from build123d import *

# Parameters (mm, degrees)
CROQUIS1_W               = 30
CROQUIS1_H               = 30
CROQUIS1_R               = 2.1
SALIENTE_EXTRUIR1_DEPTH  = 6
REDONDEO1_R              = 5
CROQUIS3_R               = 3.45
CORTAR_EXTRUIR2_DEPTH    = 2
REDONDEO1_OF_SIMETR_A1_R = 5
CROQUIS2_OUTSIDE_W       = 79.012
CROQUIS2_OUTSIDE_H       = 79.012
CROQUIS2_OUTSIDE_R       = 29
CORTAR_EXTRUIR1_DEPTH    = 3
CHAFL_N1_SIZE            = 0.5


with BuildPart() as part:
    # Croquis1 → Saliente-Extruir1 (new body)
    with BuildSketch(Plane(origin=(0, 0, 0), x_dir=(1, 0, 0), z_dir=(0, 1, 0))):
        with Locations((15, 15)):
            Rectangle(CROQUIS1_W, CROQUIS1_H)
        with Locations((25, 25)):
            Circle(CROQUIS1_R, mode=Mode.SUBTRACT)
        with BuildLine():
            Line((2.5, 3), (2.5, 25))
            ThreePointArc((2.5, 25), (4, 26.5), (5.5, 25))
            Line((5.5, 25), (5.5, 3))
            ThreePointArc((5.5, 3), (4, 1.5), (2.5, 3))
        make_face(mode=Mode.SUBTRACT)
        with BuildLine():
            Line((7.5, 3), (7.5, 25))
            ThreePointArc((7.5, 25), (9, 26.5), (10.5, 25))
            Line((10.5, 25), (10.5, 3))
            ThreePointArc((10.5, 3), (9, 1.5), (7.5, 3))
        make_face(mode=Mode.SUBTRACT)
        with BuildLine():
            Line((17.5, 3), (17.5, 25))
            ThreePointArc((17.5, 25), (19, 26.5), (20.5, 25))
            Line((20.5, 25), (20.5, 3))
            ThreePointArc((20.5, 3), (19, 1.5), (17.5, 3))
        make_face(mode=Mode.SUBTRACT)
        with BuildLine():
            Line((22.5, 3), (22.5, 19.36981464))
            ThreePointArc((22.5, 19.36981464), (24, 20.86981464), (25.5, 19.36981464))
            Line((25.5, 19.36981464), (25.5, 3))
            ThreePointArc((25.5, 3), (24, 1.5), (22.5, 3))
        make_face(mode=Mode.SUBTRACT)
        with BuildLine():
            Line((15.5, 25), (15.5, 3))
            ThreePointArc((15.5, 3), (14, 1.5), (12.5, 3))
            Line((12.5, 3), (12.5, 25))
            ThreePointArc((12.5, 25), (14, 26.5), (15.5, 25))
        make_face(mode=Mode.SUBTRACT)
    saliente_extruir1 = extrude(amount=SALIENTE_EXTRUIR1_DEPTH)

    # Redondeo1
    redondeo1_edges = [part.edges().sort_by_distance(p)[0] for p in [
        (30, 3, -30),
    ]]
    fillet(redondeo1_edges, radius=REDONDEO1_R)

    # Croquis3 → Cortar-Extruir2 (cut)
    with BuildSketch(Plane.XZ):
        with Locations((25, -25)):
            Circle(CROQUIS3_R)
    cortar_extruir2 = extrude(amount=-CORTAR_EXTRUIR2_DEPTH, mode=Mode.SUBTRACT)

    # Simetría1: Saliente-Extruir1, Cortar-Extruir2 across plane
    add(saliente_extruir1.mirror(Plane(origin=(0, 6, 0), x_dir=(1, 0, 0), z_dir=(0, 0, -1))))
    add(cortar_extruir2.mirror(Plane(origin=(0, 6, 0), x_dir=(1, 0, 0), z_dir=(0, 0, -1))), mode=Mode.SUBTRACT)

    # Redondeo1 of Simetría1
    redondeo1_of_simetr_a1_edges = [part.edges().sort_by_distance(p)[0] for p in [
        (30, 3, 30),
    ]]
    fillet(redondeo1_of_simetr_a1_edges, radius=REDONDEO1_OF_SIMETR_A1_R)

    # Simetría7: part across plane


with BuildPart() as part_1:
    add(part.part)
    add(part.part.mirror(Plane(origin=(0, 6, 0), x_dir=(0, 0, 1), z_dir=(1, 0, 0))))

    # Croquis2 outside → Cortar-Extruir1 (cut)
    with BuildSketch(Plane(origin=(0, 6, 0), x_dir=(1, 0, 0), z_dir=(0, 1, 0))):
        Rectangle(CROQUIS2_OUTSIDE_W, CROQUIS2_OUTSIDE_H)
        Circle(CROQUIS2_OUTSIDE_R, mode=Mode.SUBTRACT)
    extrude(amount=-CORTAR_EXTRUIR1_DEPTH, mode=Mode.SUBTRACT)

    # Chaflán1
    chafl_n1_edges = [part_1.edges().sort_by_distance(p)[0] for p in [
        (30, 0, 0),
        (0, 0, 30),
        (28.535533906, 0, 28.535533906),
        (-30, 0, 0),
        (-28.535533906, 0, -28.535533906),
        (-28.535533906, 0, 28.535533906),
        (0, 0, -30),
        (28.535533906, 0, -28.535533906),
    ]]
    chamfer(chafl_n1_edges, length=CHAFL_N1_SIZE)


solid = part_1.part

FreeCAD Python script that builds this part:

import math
import FreeCAD as App
import Part
import Sketcher
from FreeCAD import Vector


def edges_at(feature, points):
    """Names of the edges that pass closest to the given points."""
    edges = feature.Shape.Edges
    near = lambda p: min(range(len(edges)), key=lambda i: edges[i].distToShape(Part.Vertex(*p))[0])
    return sorted({f"Edge{near(p) + 1}" for p in points})


def add_polygon(sketch, points):
    """Adds a closed chain of lines whose ends are joined by coincident constraints."""
    first, n = sketch.GeometryCount, len(points)
    for a, b in zip(points, points[1:] + points[:1]):
        sketch.addGeometry(Part.LineSegment(App.Vector(*a, 0), App.Vector(*b, 0)), False)
    for i in range(n):
        sketch.addConstraint(Sketcher.Constraint("Coincident", first + i, 2, first + (i + 1) % n, 1))

doc = App.newDocument("Part")
params = doc.addObject("Spreadsheet::Sheet", "Params")
for row, (alias, value) in enumerate([
    ("sketch1_diameter", "4.2 mm"),
    ("sketch1_radius", "1.5 mm"),
    ("sketch1_width", "30 mm"),
    ("sketch1_height", "22 mm"),
    ("pad1_length", "6 mm"),
    ("fillet_radius", "5 mm"),
    ("sketch2_diameter", "6.9 mm"),
    ("pocket1_length", "2 mm"),
    ("fillet2_radius", "5 mm"),
    ("sketch3_diameter", "58 mm"),
    ("pocket2_length", "3 mm"),
    ("chamfer_size", "0.5 mm"),
], start=1):
    params.set(f"A{row}", alias)
    params.set(f"B{row}", "=" + value)
    params.setAlias(f"B{row}", alias)

body = doc.addObject("PartDesign::Body", "Body")

# Sketch on XZ plane
sketch1 = body.newObject("Sketcher::SketchObject", "Sketch")
sketch1.AttachmentSupport = (doc.getObject("XZ_Plane"), [""])
sketch1.MapMode = "FlatFace"
add_polygon(sketch1, [(0, -30), (0, 0), (30, 0), (30, -30)])  # lines 0-3
sketch1.addGeometry(Part.ArcOfCircle(Part.Circle(Vector(4, -3, 0), Vector(0, 0, 1), 1.5), math.radians(0), math.radians(180)), False)  # 4
sketch1.addGeometry(Part.LineSegment(Vector(2.5, -3, 0), Vector(2.5, -25, 0)), False)  # 5
sketch1.addGeometry(Part.ArcOfCircle(Part.Circle(Vector(4, -25, 0), Vector(0, 0, 1), 1.5), math.radians(180), math.radians(360)), False)  # 6
sketch1.addGeometry(Part.LineSegment(Vector(5.5, -25, 0), Vector(5.5, -3, 0)), False)  # 7
sketch1.addGeometry(Part.ArcOfCircle(Part.Circle(Vector(9, -3, 0), Vector(0, 0, 1), 1.5), math.radians(0), math.radians(180)), False)  # 8
sketch1.addGeometry(Part.LineSegment(Vector(7.5, -3, 0), Vector(7.5, -25, 0)), False)  # 9
sketch1.addGeometry(Part.ArcOfCircle(Part.Circle(Vector(9, -25, 0), Vector(0, 0, 1), 1.5), math.radians(180), math.radians(360)), False)  # 10
sketch1.addGeometry(Part.LineSegment(Vector(10.5, -25, 0), Vector(10.5, -3, 0)), False)  # 11
sketch1.addGeometry(Part.ArcOfCircle(Part.Circle(Vector(14, -25, 0), Vector(0, 0, 1), 1.5), math.radians(180), math.radians(360)), False)  # 12
sketch1.addGeometry(Part.LineSegment(Vector(15.5, -25, 0), Vector(15.5, -3, 0)), False)  # 13
sketch1.addGeometry(Part.ArcOfCircle(Part.Circle(Vector(14, -3, 0), Vector(0, 0, 1), 1.5), math.radians(0), math.radians(180)), False)  # 14
sketch1.addGeometry(Part.LineSegment(Vector(12.5, -3, 0), Vector(12.5, -25, 0)), False)  # 15
sketch1.addGeometry(Part.ArcOfCircle(Part.Circle(Vector(19, -3, 0), Vector(0, 0, 1), 1.5), math.radians(0), math.radians(180)), False)  # 16
sketch1.addGeometry(Part.LineSegment(Vector(17.5, -3, 0), Vector(17.5, -25, 0)), False)  # 17
sketch1.addGeometry(Part.ArcOfCircle(Part.Circle(Vector(19, -25, 0), Vector(0, 0, 1), 1.5), math.radians(180), math.radians(360)), False)  # 18
sketch1.addGeometry(Part.LineSegment(Vector(20.5, -25, 0), Vector(20.5, -3, 0)), False)  # 19
sketch1.addGeometry(Part.ArcOfCircle(Part.Circle(Vector(24, -3, 0), Vector(0, 0, 1), 1.5), math.radians(0), math.radians(180)), False)  # 20
sketch1.addGeometry(Part.LineSegment(Vector(22.5, -3, 0), Vector(22.5, -19.4, 0)), False)  # 21
sketch1.addGeometry(Part.ArcOfCircle(Part.Circle(Vector(24, -19.4, 0), Vector(0, 0, 1), 1.5), math.radians(180), math.radians(360)), False)  # 22
sketch1.addGeometry(Part.LineSegment(Vector(25.5, -19.4, 0), Vector(25.5, -3, 0)), False)  # 23
sketch1.addGeometry(Part.Circle(Vector(25, -25, 0), Vector(0, 0, 1), 2.1), False)  # 24
sketch1.addConstraint([
    Sketcher.Constraint("Tangent", 4, 2, 5, 1),
    Sketcher.Constraint("Tangent", 5, 2, 6, 1),
    Sketcher.Constraint("Tangent", 6, 2, 7, 1),
    Sketcher.Constraint("Tangent", 7, 2, 4, 1),
    Sketcher.Constraint("Tangent", 8, 2, 9, 1),
    Sketcher.Constraint("Tangent", 9, 2, 10, 1),
    Sketcher.Constraint("Tangent", 10, 2, 11, 1),
    Sketcher.Constraint("Tangent", 11, 2, 8, 1),
    Sketcher.Constraint("Tangent", 12, 2, 13, 1),
    Sketcher.Constraint("Tangent", 13, 2, 14, 1),
    Sketcher.Constraint("Tangent", 14, 2, 15, 1),
    Sketcher.Constraint("Tangent", 15, 2, 12, 1),
    Sketcher.Constraint("Tangent", 16, 2, 17, 1),
    Sketcher.Constraint("Tangent", 17, 2, 18, 1),
    Sketcher.Constraint("Tangent", 18, 2, 19, 1),
    Sketcher.Constraint("Tangent", 19, 2, 16, 1),
    Sketcher.Constraint("Tangent", 20, 2, 21, 1),
    Sketcher.Constraint("Tangent", 21, 2, 22, 1),
    Sketcher.Constraint("Tangent", 22, 2, 23, 1),
    Sketcher.Constraint("Tangent", 23, 2, 20, 1),
    Sketcher.Constraint("Vertical", 0),
    Sketcher.Constraint("Horizontal", 1),
    Sketcher.Constraint("Vertical", 2),
    Sketcher.Constraint("Horizontal", 3),
    Sketcher.Constraint("Vertical", 5),
    Sketcher.Constraint("Vertical", 7),
    Sketcher.Constraint("Vertical", 9),
    Sketcher.Constraint("Vertical", 11),
    Sketcher.Constraint("Vertical", 13),
    Sketcher.Constraint("Vertical", 15),
    Sketcher.Constraint("Vertical", 17),
    Sketcher.Constraint("Vertical", 19),
    Sketcher.Constraint("Vertical", 21),
    Sketcher.Constraint("Vertical", 23),
    Sketcher.Constraint("Coincident", 0, 2, -1, 1),
    Sketcher.Constraint("Equal", 6, 8),
    Sketcher.Constraint("Equal", 10, 12),
    Sketcher.Constraint("Equal", 14, 16),
    Sketcher.Constraint("Equal", 18, 20),
    Sketcher.Constraint("Horizontal", 4, 3, 8, 3),
    Sketcher.Constraint("Horizontal", 6, 3, 10, 3),
    Sketcher.Constraint("Horizontal", 10, 3, 12, 3),
    Sketcher.Constraint("Horizontal", 8, 3, 14, 3),
    Sketcher.Constraint("Horizontal", 14, 3, 16, 3),
    Sketcher.Constraint("Horizontal", 12, 3, 18, 3),
    Sketcher.Constraint("Horizontal", 16, 3, 20, 3),
    Sketcher.Constraint("Horizontal", 18, 3, 24, 3),
    Sketcher.Constraint("Equal", 3, 0),
    Sketcher.Constraint("Diameter", 24, 4.2),
    Sketcher.Constraint("Radius", 4, 1.5),
    Sketcher.Constraint("DistanceX", 1, 1, 1, 2, 30.0),
    Sketcher.Constraint("DistanceY", 5, 2, 5, 1, 22.0),
    Sketcher.Constraint("DistanceX", -1, 1, 4, 3, 4.0),
    Sketcher.Constraint("DistanceY", 4, 3, -1, 1, 3.0),
    Sketcher.Constraint("DistanceX", -1, 1, 8, 3, 9.0),
    Sketcher.Constraint("DistanceX", -1, 1, 12, 3, 14.0),
    Sketcher.Constraint("DistanceX", -1, 1, 16, 3, 19.0),
    Sketcher.Constraint("DistanceX", -1, 1, 20, 3, 24.0),
    Sketcher.Constraint("DistanceX", -1, 1, 24, 3, 25.0),
    Sketcher.Constraint("DistanceY", 21, 2, 21, 1, 16.369815),
])
sketch1.setExpression("Constraints[52]", "Params.sketch1_diameter")
sketch1.setExpression("Constraints[53]", "Params.sketch1_radius")
sketch1.setExpression("Constraints[54]", "Params.sketch1_width")
sketch1.setExpression("Constraints[55]", "Params.sketch1_height")
pad1 = body.newObject("PartDesign::Pad", "Pad")
pad1.Profile = sketch1
pad1.setExpression("Length", "Params.pad1_length")
pad1.Reversed = True
doc.recompute()

fillet = body.newObject("PartDesign::Fillet", "Fillet")
fillet.Base = (pad1, edges_at(pad1, [(30, 3, -30)]))
fillet.setExpression("Radius", "Params.fillet_radius")

# Sketch on XZ plane
sketch2 = body.newObject("Sketcher::SketchObject", "Sketch001")
sketch2.AttachmentSupport = (doc.getObject("XZ_Plane"), [""])
sketch2.MapMode = "FlatFace"
sketch2.addGeometry(Part.Circle(Vector(25, -25, 0), Vector(0, 0, 1), 3.5), False)
sketch2.addConstraint([
    Sketcher.Constraint("Diameter", 0, 6.9),
    Sketcher.Constraint("DistanceX", -1, 1, 0, 3, 25.0),
    Sketcher.Constraint("DistanceY", 0, 3, -1, 1, 25.0),
])
sketch2.setExpression("Constraints[0]", "Params.sketch2_diameter")
pocket1 = body.newObject("PartDesign::Pocket", "Pocket")
pocket1.Profile = sketch2
pocket1.setExpression("Length", "Params.pocket1_length")
doc.recompute()

mirrored = body.newObject("PartDesign::Mirrored", "Mirrored")
mirrored.Originals = [pad1, pocket1]
mirrored.MirrorPlane = (doc.getObject("XY_Plane"), [""])
body.Tip = mirrored
doc.recompute()

fillet2 = body.newObject("PartDesign::Fillet", "Fillet001")
fillet2.Base = (mirrored, edges_at(mirrored, [(30, 3, 30)]))
fillet2.setExpression("Radius", "Params.fillet2_radius")
body2 = doc.addObject("PartDesign::Body", "Body001")
doc.recompute()

body2.BaseFeature = body
doc.recompute()

mirroring = doc.addObject("Part::Mirroring", "Mirroring")
mirroring.Source = body
mirroring.Base = Vector(0, 6, 0)
mirroring.Normal = Vector(1, 0, 0)
body3 = doc.addObject("PartDesign::Body", "Body002")
body3.BaseFeature = mirroring
boolean = body2.newObject("PartDesign::Boolean", "Boolean")
boolean.Type = "Fuse"
boolean.addObjects([body3])
doc.recompute()

# Sketch on XZ plane
sketch3 = body2.newObject("Sketcher::SketchObject", "Sketch002")
sketch3.AttachmentSupport = (doc.getObject("XZ_Plane001"), [""])
sketch3.MapMode = "FlatFace"
sketch3.AttachmentOffset = App.Placement(Vector(0, 0, -6), App.Rotation())
add_polygon(sketch3, [(-40, -40), (-40, 40), (40, 40), (40, -40)])  # lines 0-3
sketch3.addGeometry(Part.Circle(Vector(0, 0, 0), Vector(0, 0, 1), 29), False)  # 4
sketch3.addConstraint([
    Sketcher.Constraint("Vertical", 0),
    Sketcher.Constraint("Horizontal", 1),
    Sketcher.Constraint("Vertical", 2),
    Sketcher.Constraint("Horizontal", 3),
    Sketcher.Constraint("Coincident", 4, 3, -1, 1),
    Sketcher.Constraint("Symmetric", 0, 2, 2, 2, -1, 1),
    Sketcher.Constraint("Equal", 3, 0),
    Sketcher.Constraint("Diameter", 4, 58.0),
    Sketcher.Constraint("DistanceX", 1, 1, 1, 2, 79.012),
])
sketch3.setExpression("Constraints[11]", "Params.sketch3_diameter")
pocket2 = body2.newObject("PartDesign::Pocket", "Pocket001")
pocket2.Profile = sketch3
pocket2.setExpression("Length", "Params.pocket2_length")
pocket2.Reversed = True
doc.recompute()

chamfer = body2.newObject("PartDesign::Chamfer", "Chamfer")
chamfer.Base = (pocket2, edges_at(pocket2, [
    (30, 0, 0),
    (0, 0, 30),
    (28.536, 0, 28.536),
    (-30, 0, 0),
    (-28.536, 0, -28.536),
    (-28.536, 0, 28.536),
    (0, 0, -30),
    (28.536, 0, -28.536),
]))
chamfer.setExpression("Size", "Params.chamfer_size")
mirroring.Visibility = False

doc.recompute()
